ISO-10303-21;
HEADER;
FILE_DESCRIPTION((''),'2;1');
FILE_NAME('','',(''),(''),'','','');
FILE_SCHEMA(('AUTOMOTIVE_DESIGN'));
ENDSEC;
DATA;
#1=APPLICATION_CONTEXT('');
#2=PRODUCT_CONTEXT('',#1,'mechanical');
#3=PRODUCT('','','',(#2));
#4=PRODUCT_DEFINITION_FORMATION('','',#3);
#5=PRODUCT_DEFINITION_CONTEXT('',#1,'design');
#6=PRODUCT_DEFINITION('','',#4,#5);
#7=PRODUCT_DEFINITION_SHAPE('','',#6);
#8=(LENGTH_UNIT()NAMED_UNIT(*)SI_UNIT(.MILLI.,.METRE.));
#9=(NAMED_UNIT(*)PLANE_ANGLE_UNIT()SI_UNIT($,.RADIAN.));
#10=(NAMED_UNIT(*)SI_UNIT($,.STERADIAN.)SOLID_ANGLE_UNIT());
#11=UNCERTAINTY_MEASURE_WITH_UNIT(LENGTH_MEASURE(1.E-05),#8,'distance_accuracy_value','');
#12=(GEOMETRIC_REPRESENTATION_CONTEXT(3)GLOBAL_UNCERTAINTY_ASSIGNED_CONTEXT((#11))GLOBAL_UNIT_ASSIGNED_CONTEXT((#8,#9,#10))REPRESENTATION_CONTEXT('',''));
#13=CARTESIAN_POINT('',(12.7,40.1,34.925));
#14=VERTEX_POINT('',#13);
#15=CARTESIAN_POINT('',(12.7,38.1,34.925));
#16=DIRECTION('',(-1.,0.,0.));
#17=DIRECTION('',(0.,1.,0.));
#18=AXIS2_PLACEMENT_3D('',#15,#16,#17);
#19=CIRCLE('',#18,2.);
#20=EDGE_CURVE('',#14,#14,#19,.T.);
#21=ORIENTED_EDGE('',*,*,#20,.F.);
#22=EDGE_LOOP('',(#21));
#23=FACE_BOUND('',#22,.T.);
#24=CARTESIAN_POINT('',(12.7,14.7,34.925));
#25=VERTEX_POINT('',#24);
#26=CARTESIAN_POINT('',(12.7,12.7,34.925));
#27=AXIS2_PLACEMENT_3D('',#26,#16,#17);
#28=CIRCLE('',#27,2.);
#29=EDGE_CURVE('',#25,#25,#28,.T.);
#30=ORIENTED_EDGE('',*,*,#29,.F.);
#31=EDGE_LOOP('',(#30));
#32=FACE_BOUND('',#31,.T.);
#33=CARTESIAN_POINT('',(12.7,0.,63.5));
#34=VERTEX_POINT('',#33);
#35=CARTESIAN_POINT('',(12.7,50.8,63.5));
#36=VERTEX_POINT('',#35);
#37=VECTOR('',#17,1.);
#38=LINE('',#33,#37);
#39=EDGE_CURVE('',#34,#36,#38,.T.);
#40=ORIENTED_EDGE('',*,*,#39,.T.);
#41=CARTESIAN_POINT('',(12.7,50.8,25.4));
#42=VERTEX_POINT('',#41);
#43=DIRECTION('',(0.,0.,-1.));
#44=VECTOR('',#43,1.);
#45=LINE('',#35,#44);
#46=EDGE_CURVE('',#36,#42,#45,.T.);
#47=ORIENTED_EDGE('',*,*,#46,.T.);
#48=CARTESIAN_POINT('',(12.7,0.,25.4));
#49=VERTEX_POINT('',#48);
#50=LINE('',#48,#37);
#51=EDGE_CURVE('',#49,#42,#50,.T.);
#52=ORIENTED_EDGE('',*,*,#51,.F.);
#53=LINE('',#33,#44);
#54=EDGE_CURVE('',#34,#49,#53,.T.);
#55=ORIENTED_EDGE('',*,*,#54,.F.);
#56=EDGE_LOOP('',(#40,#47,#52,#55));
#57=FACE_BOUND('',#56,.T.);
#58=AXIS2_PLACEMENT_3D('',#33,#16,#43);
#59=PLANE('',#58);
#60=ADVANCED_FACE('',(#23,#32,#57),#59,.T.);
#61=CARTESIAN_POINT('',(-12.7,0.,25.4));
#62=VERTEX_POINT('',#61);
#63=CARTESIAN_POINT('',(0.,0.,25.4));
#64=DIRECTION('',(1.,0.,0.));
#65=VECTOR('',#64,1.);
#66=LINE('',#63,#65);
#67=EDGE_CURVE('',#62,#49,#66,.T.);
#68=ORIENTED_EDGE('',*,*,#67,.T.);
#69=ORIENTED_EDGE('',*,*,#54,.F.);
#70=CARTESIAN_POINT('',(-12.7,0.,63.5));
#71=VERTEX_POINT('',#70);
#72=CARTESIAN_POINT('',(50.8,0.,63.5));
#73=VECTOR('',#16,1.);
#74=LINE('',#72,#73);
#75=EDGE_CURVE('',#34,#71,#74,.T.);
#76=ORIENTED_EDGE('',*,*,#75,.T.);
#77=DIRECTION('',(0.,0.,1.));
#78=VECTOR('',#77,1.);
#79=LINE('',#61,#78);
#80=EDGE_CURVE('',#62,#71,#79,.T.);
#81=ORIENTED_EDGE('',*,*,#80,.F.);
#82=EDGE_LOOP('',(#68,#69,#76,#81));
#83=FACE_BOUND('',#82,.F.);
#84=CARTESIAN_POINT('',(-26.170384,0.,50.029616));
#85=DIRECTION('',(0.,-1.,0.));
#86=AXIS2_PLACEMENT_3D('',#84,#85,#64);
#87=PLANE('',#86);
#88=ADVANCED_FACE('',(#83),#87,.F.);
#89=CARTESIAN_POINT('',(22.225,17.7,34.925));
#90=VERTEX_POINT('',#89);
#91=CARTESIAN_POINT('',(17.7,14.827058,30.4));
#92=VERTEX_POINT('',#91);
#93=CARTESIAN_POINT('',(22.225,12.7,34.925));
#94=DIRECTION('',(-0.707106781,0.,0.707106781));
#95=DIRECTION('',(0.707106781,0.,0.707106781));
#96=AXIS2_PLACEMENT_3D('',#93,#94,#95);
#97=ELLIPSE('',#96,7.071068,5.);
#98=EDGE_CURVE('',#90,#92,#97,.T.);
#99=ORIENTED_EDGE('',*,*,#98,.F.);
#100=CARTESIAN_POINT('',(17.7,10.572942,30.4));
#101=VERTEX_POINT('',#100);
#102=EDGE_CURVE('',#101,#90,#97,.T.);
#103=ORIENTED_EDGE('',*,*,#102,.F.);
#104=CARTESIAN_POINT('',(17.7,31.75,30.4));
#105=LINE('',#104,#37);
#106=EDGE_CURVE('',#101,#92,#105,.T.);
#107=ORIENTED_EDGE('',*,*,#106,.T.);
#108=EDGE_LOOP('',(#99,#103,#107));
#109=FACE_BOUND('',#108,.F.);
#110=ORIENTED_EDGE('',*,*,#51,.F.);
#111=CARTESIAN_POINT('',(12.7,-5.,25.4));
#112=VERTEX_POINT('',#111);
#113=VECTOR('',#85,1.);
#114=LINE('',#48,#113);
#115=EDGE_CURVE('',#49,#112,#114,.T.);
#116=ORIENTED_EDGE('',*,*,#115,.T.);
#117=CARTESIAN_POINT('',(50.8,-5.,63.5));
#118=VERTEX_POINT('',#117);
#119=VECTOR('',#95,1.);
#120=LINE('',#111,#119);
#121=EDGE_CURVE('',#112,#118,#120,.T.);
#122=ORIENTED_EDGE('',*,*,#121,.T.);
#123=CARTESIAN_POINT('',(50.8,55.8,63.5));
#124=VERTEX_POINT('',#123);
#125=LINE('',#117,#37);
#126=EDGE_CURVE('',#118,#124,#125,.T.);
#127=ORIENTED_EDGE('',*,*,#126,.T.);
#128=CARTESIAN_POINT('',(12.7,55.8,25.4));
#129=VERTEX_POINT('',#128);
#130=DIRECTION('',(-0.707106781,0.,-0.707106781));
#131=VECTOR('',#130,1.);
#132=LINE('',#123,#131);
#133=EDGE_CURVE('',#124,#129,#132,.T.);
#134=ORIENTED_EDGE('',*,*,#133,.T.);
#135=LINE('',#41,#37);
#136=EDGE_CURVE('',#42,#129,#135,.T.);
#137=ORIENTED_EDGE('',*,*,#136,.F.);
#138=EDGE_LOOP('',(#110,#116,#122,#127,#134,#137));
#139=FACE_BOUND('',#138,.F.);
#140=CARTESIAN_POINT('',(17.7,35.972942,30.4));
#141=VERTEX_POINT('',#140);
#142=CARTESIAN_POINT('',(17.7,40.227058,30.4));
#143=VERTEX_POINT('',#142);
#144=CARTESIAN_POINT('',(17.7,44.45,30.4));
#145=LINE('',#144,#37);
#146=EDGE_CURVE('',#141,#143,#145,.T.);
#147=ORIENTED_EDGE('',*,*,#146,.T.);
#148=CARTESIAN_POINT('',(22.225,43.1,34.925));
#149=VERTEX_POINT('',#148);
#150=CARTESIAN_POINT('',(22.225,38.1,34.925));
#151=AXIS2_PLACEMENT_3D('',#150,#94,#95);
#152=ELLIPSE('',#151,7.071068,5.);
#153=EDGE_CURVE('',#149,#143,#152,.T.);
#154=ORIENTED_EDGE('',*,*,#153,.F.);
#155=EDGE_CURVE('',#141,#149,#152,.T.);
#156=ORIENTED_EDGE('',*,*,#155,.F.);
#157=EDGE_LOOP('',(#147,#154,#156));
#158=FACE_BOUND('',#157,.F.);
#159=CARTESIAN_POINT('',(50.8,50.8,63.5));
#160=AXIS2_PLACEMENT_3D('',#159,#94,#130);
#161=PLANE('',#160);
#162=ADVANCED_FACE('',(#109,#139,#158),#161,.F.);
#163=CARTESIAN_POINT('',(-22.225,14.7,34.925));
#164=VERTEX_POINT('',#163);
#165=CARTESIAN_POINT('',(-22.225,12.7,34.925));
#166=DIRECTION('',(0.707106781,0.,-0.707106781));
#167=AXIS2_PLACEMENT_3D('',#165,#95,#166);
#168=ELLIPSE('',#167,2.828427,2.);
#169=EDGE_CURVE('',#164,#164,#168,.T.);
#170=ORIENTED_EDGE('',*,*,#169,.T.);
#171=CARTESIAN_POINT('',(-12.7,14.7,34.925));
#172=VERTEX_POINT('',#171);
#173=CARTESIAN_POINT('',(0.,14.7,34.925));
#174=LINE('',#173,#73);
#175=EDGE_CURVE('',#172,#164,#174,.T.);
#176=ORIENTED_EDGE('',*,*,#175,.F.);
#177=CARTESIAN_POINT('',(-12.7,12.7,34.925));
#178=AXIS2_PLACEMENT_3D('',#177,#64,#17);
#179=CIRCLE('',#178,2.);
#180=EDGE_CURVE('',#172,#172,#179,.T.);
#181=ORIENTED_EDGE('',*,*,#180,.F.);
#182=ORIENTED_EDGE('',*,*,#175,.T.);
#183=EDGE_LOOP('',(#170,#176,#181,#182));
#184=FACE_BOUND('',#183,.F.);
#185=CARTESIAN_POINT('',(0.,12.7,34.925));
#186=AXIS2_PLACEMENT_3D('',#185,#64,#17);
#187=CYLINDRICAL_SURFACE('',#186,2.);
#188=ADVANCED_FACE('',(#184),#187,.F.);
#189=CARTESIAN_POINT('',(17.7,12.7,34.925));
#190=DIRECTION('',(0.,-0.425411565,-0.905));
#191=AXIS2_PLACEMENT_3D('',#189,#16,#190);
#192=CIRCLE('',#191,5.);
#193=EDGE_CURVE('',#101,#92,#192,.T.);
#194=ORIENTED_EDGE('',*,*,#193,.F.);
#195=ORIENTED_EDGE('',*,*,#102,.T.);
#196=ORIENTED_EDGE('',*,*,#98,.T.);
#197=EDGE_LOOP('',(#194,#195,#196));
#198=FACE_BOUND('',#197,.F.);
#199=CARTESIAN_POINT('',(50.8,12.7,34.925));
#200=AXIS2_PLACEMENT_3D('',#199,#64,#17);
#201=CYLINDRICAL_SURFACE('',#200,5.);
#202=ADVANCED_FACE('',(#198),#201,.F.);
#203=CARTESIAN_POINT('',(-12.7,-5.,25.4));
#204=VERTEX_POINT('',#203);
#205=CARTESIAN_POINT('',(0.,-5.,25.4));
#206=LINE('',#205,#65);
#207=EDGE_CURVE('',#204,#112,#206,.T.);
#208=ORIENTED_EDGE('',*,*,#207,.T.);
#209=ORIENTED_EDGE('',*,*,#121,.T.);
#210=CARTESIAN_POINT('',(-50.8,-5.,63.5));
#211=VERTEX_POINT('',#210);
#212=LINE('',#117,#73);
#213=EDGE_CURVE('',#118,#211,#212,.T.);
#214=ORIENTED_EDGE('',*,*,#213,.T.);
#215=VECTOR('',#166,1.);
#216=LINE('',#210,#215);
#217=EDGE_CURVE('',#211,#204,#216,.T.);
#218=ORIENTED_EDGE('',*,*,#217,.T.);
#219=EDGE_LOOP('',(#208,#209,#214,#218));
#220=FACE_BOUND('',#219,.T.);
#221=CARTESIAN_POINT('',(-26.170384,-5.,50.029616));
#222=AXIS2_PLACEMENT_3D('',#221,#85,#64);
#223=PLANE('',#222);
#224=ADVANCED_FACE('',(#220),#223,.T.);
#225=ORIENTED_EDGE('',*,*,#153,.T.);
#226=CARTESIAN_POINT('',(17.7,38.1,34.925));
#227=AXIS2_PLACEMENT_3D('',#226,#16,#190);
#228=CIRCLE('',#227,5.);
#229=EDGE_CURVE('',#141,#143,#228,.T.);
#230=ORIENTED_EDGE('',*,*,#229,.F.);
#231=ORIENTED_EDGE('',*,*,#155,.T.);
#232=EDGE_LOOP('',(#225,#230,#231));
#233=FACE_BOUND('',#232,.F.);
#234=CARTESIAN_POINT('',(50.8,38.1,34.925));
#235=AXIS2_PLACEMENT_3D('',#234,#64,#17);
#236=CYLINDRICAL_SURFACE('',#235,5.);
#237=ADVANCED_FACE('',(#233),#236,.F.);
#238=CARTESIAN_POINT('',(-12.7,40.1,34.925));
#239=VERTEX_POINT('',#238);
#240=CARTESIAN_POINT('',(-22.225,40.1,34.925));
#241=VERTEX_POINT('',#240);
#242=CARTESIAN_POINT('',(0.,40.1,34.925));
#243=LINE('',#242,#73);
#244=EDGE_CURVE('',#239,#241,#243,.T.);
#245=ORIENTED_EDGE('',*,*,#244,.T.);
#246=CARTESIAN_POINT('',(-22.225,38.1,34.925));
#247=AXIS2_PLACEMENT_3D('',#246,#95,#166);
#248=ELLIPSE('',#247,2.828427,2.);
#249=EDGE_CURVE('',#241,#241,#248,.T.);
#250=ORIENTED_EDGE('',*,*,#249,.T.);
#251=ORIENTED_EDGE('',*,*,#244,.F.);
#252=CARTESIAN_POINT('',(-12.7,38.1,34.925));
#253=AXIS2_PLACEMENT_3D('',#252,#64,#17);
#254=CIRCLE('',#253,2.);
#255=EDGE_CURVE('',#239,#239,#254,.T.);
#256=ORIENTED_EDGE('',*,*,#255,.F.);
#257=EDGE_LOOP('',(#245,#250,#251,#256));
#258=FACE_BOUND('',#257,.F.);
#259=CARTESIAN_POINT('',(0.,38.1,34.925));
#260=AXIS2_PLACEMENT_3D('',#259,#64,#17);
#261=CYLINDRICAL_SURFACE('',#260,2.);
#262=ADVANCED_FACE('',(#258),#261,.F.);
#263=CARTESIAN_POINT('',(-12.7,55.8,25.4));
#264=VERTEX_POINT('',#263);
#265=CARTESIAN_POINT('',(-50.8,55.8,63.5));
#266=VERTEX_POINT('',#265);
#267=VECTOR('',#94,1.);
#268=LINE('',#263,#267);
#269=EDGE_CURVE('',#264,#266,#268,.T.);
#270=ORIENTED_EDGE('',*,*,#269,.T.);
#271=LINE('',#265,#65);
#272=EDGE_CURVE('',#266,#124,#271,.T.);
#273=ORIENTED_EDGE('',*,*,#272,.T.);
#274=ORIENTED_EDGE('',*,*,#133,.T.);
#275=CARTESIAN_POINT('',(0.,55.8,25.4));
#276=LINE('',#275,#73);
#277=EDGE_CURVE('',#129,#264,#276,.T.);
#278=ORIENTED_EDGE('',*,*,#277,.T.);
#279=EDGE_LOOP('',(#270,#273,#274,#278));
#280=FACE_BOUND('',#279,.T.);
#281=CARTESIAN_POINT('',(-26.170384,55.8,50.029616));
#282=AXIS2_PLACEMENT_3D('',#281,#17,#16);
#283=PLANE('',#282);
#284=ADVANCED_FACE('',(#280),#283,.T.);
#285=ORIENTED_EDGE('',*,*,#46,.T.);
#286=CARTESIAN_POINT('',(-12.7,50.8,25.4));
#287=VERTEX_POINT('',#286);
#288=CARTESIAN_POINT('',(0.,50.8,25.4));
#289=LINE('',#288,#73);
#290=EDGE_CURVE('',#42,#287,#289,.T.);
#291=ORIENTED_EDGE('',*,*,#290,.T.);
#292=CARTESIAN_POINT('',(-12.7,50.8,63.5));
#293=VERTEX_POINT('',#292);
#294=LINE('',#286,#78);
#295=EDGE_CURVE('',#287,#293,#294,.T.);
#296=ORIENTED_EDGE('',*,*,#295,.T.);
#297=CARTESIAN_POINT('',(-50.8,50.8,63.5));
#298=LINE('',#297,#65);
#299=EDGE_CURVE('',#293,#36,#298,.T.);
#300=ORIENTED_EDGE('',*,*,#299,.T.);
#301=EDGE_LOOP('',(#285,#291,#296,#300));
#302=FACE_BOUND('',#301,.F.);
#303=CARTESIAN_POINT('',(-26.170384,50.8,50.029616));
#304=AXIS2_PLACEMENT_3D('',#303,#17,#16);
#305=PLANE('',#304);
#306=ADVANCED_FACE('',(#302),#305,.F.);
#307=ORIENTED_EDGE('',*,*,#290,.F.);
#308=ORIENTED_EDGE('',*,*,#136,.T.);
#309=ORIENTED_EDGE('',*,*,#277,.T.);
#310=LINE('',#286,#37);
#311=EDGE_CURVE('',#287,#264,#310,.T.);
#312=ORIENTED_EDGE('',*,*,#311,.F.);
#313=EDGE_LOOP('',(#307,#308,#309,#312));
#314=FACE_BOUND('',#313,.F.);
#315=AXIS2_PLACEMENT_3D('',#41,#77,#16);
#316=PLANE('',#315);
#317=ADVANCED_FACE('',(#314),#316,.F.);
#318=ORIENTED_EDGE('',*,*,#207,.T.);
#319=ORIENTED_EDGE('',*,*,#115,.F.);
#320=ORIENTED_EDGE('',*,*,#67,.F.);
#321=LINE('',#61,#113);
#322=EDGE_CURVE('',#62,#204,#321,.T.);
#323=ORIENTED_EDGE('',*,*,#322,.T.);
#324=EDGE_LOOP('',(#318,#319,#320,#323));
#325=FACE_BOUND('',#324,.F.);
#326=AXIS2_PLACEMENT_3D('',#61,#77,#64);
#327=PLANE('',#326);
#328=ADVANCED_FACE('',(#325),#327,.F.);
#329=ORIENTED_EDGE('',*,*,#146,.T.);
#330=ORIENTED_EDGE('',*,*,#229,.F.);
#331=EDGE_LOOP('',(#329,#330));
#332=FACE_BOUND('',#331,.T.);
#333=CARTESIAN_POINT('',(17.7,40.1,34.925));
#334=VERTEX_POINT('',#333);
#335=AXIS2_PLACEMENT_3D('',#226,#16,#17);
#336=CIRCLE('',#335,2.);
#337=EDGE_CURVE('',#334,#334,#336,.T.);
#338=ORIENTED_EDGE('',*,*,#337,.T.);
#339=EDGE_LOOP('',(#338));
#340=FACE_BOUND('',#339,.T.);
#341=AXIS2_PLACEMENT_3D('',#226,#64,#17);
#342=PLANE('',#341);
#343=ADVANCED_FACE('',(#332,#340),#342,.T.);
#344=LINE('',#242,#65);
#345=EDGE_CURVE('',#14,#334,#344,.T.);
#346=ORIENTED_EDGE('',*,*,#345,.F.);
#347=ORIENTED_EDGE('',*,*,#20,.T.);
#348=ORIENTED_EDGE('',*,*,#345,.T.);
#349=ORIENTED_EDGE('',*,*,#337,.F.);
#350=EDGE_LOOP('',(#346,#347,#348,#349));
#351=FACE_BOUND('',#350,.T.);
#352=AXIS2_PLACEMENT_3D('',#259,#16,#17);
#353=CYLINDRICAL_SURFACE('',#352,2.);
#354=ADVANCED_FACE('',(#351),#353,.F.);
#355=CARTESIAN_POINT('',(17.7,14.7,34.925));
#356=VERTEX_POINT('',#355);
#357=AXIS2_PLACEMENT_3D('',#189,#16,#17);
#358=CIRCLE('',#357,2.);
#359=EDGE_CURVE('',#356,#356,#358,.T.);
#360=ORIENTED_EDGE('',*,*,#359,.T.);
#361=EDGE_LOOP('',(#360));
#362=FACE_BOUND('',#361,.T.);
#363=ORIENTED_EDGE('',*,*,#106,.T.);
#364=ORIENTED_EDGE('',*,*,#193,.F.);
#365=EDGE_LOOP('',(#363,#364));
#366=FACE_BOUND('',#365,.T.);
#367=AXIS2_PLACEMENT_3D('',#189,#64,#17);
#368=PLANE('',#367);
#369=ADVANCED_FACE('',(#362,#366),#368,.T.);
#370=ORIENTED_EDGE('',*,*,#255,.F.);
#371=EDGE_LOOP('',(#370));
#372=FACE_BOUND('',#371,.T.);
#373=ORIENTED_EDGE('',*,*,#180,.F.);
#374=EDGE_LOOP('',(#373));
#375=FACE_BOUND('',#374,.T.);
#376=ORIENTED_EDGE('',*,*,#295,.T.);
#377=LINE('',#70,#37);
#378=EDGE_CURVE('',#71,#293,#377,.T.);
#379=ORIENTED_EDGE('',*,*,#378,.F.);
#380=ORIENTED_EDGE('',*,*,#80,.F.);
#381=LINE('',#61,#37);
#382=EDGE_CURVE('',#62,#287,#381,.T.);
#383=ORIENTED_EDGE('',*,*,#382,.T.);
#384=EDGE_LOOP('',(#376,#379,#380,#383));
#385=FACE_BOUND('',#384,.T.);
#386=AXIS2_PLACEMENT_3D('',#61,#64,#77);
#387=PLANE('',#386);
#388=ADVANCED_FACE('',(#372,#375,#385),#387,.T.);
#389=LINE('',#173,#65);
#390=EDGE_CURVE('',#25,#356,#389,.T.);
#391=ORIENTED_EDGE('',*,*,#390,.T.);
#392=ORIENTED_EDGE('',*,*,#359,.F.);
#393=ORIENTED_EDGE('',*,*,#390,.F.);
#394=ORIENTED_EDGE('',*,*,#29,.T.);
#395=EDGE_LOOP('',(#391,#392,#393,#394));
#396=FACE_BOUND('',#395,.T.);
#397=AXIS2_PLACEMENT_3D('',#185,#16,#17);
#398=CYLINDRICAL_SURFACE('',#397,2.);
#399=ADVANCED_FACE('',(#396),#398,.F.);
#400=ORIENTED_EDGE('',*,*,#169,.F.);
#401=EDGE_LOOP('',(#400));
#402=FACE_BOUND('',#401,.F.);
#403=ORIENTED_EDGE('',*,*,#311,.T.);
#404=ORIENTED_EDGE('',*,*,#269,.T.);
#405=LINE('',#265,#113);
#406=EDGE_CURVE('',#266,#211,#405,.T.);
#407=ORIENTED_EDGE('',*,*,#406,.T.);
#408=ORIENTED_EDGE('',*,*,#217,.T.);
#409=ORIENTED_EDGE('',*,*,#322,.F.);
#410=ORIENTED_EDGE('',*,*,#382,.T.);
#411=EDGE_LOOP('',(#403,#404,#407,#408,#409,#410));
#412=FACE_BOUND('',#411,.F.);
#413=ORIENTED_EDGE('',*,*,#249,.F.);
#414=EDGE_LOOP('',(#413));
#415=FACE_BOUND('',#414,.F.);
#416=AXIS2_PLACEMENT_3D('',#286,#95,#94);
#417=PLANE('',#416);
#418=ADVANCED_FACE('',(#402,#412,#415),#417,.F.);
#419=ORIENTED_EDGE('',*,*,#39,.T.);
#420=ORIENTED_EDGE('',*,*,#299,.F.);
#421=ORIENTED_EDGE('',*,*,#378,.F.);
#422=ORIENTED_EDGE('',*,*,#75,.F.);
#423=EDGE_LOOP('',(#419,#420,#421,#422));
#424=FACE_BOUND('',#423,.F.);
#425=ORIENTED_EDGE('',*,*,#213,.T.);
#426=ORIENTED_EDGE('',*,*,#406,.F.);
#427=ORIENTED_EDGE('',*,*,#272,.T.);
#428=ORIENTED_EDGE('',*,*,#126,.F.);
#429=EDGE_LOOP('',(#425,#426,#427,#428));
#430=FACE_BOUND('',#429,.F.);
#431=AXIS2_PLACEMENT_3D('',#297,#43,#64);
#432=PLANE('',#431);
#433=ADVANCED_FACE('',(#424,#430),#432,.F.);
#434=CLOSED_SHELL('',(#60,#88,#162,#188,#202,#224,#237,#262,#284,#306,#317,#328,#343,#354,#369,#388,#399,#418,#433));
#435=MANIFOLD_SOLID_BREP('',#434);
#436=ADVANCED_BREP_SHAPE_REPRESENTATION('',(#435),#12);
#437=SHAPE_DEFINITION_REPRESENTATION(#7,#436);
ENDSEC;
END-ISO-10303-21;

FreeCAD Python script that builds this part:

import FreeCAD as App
import Part
import Sketcher

doc = App.newDocument("Part")
body = doc.addObject("PartDesign::Body", "Body")

# Sketch on XZ plane
sketch1 = body.newObject("Sketcher::SketchObject", "Sketch")
sketch1.AttachmentSupport = (doc.getObject("XZ_Plane"), [""])
sketch1.MapMode = "FlatFace"
sketch1.addGeometry([
    Part.LineSegment(App.Vector(-50.8, 63.5, 0), App.Vector(-12.7, 25.4, 0)),
    Part.LineSegment(App.Vector(-12.7, 25.4, 0), App.Vector(12.7, 25.4, 0)),
    Part.LineSegment(App.Vector(12.7, 25.4, 0), App.Vector(50.8, 63.5, 0)),
    Part.LineSegment(App.Vector(50.8, 63.5, 0), App.Vector(-50.8, 63.5, 0)),
], False)
sketch1.addConstraint([
    Sketcher.Constraint("Coincident", 0, 2, 1, 1),
    Sketcher.Constraint("Coincident", 1, 2, 2, 1),
    Sketcher.Constraint("Coincident", 2, 2, 3, 1),
    Sketcher.Constraint("Coincident", 3, 2, 0, 1),
    Sketcher.Constraint("Horizontal", 1),
    Sketcher.Constraint("Horizontal", 3),
    Sketcher.Constraint("Perpendicular", 0, 2),
    Sketcher.Constraint("Equal", 0, 2),
    Sketcher.Constraint("DistanceX", 1, 1, 1, 2, 25.4),
    Sketcher.Constraint("DistanceX", 3, 2, 3, 1, 101.6),
    Sketcher.Constraint("DistanceX", 0, 2, -1, 1, 12.7),
    Sketcher.Constraint("DistanceY", -1, 1, 0, 2, 25.4),
])
pad1 = body.newObject("PartDesign::Pad", "Pad")
pad1.Profile = sketch1
pad1.Length = 5

# Sketch on XZ plane
sketch2 = body.newObject("Sketcher::SketchObject", "Sketch001")
sketch2.AttachmentSupport = (doc.getObject("XZ_Plane"), [""])
sketch2.MapMode = "FlatFace"
sketch2.addGeometry([
    Part.LineSegment(App.Vector(12.7, 63.5, 0), App.Vector(12.7, 25.4, 0)),  # 0
    Part.LineSegment(App.Vector(12.7, 25.4, 0), App.Vector(50.8, 63.5, 0)),  # 1
    Part.LineSegment(App.Vector(50.8, 63.5, 0), App.Vector(12.7, 63.5, 0)),  # 2
    Part.LineSegment(App.Vector(-12.7, 63.5, 0), App.Vector(-50.8, 63.5, 0)),  # 3
    Part.LineSegment(App.Vector(-50.8, 63.5, 0), App.Vector(-12.7, 25.4, 0)),  # 4
    Part.LineSegment(App.Vector(-12.7, 25.4, 0), App.Vector(-12.7, 63.5, 0)),  # 5
], False)
sketch2.addConstraint([
    Sketcher.Constraint("Coincident", 0, 2, 1, 1),
    Sketcher.Constraint("Coincident", 1, 2, 2, 1),
    Sketcher.Constraint("Coincident", 2, 2, 0, 1),
    Sketcher.Constraint("Coincident", 3, 2, 4, 1),
    Sketcher.Constraint("Coincident", 4, 2, 5, 1),
    Sketcher.Constraint("Coincident", 5, 2, 3, 1),
    Sketcher.Constraint("Vertical", 0),
    Sketcher.Constraint("Horizontal", 2),
    Sketcher.Constraint("Horizontal", 3),
    Sketcher.Constraint("Vertical", 5),
    Sketcher.Constraint("Symmetric", 1, 2, 3, 2, -2),
    Sketcher.Constraint("Symmetric", 0, 2, 4, 2, -2),
    Sketcher.Constraint("Perpendicular", 1, 4),
    Sketcher.Constraint("DistanceX", 2, 2, 2, 1, 38.1),
    Sketcher.Constraint("DistanceX", -1, 1, 0, 2, 12.7),
    Sketcher.Constraint("DistanceY", -1, 1, 0, 2, 25.4),
])
pad2 = body.newObject("PartDesign::Pad", "Pad001")
pad2.Profile = sketch2
pad2.Length = 50.8
pad2.Reversed = True

# Sketch on XZ plane
sketch3 = body.newObject("Sketcher::SketchObject", "Sketch002")
sketch3.AttachmentSupport = (doc.getObject("XZ_Plane"), [""])
sketch3.MapMode = "FlatFace"
sketch3.AttachmentOffset = App.Placement(App.Vector(0, 0, -50.8), App.Rotation())
sketch3.addGeometry([
    Part.LineSegment(App.Vector(-50.8, 63.5, 0), App.Vector(50.8, 63.5, 0)),
    Part.LineSegment(App.Vector(50.8, 63.5, 0), App.Vector(12.7, 25.4, 0)),
    Part.LineSegment(App.Vector(12.7, 25.4, 0), App.Vector(-12.7, 25.4, 0)),
    Part.LineSegment(App.Vector(-12.7, 25.4, 0), App.Vector(-50.8, 63.5, 0)),
], False)
sketch3.addConstraint([
    Sketcher.Constraint("Coincident", 0, 2, 1, 1),
    Sketcher.Constraint("Coincident", 1, 2, 2, 1),
    Sketcher.Constraint("Coincident", 2, 2, 3, 1),
    Sketcher.Constraint("Coincident", 3, 2, 0, 1),
    Sketcher.Constraint("Horizontal", 0),
    Sketcher.Constraint("Horizontal", 2),
    Sketcher.Constraint("Perpendicular", 1, 3),
    Sketcher.Constraint("Equal", 1, 3),
    Sketcher.Constraint("DistanceX", 0, 1, 0, 2, 101.6),
    Sketcher.Constraint("DistanceX", 2, 2, 2, 1, 25.4),
    Sketcher.Constraint("DistanceX", -1, 1, 0, 2, 50.8),
    Sketcher.Constraint("DistanceY", -1, 1, 0, 2, 63.5),
])
pad3 = body.newObject("PartDesign::Pad", "Pad002")
pad3.Profile = sketch3
pad3.Length = 5
pad3.Reversed = True

# Sketch on YZ plane
sketch4 = body.newObject("Sketcher::SketchObject", "Sketch003")
sketch4.AttachmentSupport = (doc.getObject("YZ_Plane"), [""])
sketch4.MapMode = "FlatFace"
sketch4.addGeometry([
    Part.Circle(App.Vector(38.1, 34.925, 0), App.Vector(0, 0, 1), 2),
    Part.Circle(App.Vector(12.7, 34.925, 0), App.Vector(0, 0, 1), 2),
], False)
sketch4.addConstraint([
    Sketcher.Constraint("Equal", 0, 1),
    Sketcher.Constraint("Horizontal", 0, 3, 1, 3),
    Sketcher.Constraint("Diameter", 0, 4.0),
    Sketcher.Constraint("DistanceX", -1, 1, 0, 3, 38.1),
    Sketcher.Constraint("DistanceX", -1, 1, 1, 3, 12.7),
    Sketcher.Constraint("DistanceY", -1, 1, 0, 3, 34.925),
])
pocket1 = body.newObject("PartDesign::Pocket", "Pocket")
pocket1.Profile = sketch4
pocket1.Type = "ThroughAll"
pocket1.Midplane = True

# Sketch on YZ plane
sketch5 = body.newObject("Sketcher::SketchObject", "Sketch004")
sketch5.AttachmentSupport = (doc.getObject("YZ_Plane"), [""])
sketch5.MapMode = "FlatFace"
sketch5.AttachmentOffset = App.Placement(App.Vector(0, 0, 50.8), App.Rotation())
sketch5.addGeometry([
    Part.Circle(App.Vector(38.1, 34.925, 0), App.Vector(0, 0, 1), 5),
    Part.Circle(App.Vector(12.7, 34.925, 0), App.Vector(0, 0, 1), 5),
], False)
sketch5.addConstraint([
    Sketcher.Constraint("Equal", 0, 1),
    Sketcher.Constraint("Horizontal", 0, 3, 1, 3),
    Sketcher.Constraint("Diameter", 0, 10.0),
    Sketcher.Constraint("DistanceX", -1, 1, 0, 3, 38.1),
    Sketcher.Constraint("DistanceX", -1, 1, 1, 3, 12.7),
    Sketcher.Constraint("DistanceY", -1, 1, 0, 3, 34.925),
])
pocket2 = body.newObject("PartDesign::Pocket", "Pocket001")
pocket2.Profile = sketch5
pocket2.Length = 33.1

doc.recompute()
